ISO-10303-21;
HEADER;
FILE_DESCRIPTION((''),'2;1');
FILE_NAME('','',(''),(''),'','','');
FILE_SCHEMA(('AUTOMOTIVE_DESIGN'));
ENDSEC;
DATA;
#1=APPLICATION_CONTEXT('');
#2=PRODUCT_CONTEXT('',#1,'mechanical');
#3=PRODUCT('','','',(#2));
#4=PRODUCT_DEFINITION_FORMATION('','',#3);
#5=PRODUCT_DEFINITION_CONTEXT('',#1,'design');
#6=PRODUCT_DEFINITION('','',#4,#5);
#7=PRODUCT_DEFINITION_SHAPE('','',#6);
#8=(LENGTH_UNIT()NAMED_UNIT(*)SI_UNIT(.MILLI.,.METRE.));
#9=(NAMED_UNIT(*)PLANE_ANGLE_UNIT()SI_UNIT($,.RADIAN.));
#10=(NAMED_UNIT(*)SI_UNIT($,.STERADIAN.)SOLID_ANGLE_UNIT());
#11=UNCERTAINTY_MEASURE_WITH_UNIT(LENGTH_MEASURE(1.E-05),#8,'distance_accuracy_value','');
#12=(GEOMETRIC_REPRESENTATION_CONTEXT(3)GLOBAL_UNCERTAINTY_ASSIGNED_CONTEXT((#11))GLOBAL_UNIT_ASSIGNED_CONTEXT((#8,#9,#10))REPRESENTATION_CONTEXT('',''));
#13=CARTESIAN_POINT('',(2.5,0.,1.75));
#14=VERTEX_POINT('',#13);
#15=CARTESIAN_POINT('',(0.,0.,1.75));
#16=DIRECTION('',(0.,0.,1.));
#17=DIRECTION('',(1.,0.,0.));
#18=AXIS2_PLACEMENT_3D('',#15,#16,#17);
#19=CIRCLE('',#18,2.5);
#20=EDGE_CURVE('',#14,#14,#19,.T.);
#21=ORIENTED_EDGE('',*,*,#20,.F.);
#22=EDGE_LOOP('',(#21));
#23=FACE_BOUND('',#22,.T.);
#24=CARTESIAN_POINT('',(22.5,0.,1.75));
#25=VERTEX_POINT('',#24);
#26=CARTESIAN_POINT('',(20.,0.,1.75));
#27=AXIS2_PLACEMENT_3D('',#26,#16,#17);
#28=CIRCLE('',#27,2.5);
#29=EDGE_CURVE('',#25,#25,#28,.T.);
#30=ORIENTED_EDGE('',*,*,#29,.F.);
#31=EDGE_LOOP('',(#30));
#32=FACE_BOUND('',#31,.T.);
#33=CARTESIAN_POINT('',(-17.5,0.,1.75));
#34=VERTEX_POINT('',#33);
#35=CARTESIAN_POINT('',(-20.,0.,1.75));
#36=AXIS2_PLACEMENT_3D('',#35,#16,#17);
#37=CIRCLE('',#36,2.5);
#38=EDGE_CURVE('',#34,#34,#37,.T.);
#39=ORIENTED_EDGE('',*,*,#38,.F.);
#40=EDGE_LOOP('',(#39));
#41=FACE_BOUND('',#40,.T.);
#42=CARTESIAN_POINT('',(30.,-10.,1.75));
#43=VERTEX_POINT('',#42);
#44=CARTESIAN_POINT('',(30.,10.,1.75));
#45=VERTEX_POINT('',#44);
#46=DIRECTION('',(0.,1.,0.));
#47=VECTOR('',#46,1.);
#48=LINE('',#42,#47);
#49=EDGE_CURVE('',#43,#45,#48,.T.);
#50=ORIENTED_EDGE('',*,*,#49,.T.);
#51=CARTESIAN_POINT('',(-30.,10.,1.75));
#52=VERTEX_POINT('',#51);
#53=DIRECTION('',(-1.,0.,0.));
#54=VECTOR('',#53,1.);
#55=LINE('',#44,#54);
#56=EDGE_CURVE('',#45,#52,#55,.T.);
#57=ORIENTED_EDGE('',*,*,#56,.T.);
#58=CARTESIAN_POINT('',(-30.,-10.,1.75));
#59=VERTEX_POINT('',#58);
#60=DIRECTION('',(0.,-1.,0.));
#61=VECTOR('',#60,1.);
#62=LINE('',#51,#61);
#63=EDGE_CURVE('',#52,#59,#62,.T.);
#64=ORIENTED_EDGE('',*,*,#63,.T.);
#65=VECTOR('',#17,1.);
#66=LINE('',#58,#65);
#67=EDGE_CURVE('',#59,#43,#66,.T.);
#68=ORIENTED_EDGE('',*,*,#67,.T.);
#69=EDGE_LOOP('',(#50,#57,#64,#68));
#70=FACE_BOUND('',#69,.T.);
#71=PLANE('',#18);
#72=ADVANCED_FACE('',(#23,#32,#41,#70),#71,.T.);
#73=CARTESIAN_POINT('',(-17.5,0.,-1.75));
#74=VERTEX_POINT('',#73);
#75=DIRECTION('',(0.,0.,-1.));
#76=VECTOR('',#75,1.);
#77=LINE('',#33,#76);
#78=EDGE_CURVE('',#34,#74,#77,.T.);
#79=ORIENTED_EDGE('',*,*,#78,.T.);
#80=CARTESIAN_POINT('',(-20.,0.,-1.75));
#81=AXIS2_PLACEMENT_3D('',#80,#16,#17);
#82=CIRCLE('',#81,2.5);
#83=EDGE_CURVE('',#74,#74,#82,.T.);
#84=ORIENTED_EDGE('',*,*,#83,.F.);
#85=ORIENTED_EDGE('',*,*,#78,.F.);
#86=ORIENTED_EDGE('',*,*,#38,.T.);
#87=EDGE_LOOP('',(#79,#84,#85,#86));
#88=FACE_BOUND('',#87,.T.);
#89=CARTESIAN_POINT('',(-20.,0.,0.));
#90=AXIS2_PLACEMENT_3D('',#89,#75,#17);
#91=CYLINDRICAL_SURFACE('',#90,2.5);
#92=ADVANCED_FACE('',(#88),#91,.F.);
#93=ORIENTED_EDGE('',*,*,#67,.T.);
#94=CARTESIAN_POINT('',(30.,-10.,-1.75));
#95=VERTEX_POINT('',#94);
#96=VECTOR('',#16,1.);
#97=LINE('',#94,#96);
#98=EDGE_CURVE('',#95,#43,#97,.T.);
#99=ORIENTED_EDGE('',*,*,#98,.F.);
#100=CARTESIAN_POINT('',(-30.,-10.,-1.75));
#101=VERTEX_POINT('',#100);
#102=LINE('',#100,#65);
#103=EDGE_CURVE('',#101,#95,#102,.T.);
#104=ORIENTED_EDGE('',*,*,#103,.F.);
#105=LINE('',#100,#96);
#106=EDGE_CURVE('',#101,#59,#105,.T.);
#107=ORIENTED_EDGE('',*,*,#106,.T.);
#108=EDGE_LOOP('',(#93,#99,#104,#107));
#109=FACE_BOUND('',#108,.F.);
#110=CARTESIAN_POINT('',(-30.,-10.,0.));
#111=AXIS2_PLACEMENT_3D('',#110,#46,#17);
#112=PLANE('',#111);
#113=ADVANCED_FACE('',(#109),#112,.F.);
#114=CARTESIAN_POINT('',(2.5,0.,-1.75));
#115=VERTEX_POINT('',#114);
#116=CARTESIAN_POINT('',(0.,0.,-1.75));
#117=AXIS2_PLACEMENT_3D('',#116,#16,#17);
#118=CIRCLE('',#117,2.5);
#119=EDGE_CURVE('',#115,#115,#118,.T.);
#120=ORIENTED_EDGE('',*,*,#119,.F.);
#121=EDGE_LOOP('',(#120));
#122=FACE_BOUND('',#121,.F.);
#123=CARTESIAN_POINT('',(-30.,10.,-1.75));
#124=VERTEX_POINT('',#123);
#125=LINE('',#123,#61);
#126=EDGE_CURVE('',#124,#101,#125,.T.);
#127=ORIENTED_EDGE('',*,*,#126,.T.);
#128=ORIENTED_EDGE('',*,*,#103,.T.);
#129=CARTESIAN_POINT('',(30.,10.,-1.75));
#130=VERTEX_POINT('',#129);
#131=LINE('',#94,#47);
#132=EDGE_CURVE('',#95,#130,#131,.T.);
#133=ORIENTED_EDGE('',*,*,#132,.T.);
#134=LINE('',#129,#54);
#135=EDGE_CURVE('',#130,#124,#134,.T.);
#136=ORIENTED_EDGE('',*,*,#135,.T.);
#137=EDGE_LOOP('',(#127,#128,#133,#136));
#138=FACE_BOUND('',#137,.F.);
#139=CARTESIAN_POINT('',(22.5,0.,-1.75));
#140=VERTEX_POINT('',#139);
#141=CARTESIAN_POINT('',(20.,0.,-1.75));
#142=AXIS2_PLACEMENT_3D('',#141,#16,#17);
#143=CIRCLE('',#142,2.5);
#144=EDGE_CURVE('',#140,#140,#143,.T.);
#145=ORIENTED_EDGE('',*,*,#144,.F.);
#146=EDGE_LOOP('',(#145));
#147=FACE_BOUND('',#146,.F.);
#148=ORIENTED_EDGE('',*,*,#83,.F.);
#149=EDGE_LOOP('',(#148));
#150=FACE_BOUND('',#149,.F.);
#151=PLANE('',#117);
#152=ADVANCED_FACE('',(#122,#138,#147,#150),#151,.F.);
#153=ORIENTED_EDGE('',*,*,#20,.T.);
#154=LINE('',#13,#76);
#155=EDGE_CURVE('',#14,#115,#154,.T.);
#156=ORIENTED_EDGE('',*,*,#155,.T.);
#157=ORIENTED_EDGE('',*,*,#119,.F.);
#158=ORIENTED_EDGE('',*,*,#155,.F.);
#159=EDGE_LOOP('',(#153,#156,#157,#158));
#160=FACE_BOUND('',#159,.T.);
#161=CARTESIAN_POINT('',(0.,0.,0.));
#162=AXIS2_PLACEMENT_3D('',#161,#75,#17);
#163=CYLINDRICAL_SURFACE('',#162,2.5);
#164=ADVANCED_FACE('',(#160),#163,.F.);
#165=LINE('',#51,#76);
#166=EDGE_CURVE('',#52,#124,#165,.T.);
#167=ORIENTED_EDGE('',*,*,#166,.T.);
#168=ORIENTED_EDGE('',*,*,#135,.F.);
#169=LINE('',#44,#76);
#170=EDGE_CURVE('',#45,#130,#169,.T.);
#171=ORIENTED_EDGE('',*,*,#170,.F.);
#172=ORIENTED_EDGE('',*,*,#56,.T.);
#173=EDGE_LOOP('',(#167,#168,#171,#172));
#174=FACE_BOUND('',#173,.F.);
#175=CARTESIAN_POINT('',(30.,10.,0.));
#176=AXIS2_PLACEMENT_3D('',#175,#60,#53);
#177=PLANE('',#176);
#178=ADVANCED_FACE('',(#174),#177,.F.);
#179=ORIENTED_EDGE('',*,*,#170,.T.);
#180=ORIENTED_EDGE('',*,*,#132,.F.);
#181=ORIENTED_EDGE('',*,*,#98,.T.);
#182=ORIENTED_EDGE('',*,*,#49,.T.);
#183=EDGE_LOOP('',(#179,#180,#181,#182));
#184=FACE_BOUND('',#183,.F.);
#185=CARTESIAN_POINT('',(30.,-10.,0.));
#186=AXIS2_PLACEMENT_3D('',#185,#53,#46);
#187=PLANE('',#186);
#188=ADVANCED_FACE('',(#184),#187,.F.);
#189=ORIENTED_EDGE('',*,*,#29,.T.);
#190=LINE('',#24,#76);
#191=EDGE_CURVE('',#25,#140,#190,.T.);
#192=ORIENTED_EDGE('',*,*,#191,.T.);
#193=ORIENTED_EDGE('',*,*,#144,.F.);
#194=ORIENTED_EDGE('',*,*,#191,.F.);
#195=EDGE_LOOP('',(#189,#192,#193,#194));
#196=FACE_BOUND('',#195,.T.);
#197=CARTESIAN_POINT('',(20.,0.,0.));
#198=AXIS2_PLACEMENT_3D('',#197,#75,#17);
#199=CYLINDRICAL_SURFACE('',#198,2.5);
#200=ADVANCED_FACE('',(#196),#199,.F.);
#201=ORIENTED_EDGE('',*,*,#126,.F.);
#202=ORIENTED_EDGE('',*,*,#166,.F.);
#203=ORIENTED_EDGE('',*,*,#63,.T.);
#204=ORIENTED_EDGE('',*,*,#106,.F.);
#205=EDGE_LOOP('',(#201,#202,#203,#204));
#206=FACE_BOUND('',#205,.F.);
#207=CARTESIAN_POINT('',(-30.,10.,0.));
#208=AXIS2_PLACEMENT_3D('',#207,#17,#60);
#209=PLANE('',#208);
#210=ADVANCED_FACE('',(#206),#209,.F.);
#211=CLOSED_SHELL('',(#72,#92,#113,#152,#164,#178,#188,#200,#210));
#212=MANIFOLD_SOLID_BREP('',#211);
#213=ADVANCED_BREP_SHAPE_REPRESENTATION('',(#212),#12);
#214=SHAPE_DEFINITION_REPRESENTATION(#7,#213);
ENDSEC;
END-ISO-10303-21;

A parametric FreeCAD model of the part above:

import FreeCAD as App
import Part
import Sketcher
from FreeCAD import Vector

doc = App.newDocument("Part")
body = doc.addObject("PartDesign::Body", "Body")

# Sketch on XY plane
sketch1 = body.newObject("Sketcher::SketchObject", "Sketch")
sketch1.AttachmentSupport = (doc.getObject("XY_Plane"), [""])
sketch1.MapMode = "FlatFace"
sketch1.addGeometry([
    Part.LineSegment(Vector(-30, 10, 0), Vector(-30, -10, 0)),  # 0
    Part.LineSegment(Vector(-30, -10, 0), Vector(30, -10, 0)),  # 1
    Part.LineSegment(Vector(30, -10, 0), Vector(30, 10, 0)),  # 2
    Part.LineSegment(Vector(30, 10, 0), Vector(-30, 10, 0)),  # 3
    Part.Circle(Vector(-20, 0, 0), Vector(0, 0, 1), 2.5),  # 4
    Part.Circle(Vector(0, 0, 0), Vector(0, 0, 1), 2.5),  # 5
    Part.Circle(Vector(20, 0, 0), Vector(0, 0, 1), 2.5),  # 6
], False)
sketch1.addConstraint([
    Sketcher.Constraint("Coincident", 0, 2, 1, 1),
    Sketcher.Constraint("Coincident", 1, 2, 2, 1),
    Sketcher.Constraint("Coincident", 2, 2, 3, 1),
    Sketcher.Constraint("Coincident", 3, 2, 0, 1),
    Sketcher.Constraint("Vertical", 0),
    Sketcher.Constraint("Horizontal", 1),
    Sketcher.Constraint("Vertical", 2),
    Sketcher.Constraint("Horizontal", 3),
    Sketcher.Constraint("Coincident", 5, 3, -1, 1),
    Sketcher.Constraint("Equal", 4, 5),
    Sketcher.Constraint("Equal", 5, 6),
    Sketcher.Constraint("Symmetric", 4, 3, 6, 3, -1, 1),
    Sketcher.Constraint("Symmetric", 0, 2, 2, 2, -1, 1),
    Sketcher.Constraint("PointOnObject", 4, 3, -1),
    Sketcher.Constraint("Diameter", 4, 5.0),
    Sketcher.Constraint("DistanceX", 1, 1, 1, 2, 60.0),
    Sketcher.Constraint("DistanceY", 0, 2, 0, 1, 20.0),
    Sketcher.Constraint("DistanceX", 4, 3, -1, 1, 20.0),
])
pad1 = body.newObject("PartDesign::Pad", "Pad")
pad1.Profile = sketch1
pad1.Length = 3.5
pad1.Midplane = True

doc.recompute()
